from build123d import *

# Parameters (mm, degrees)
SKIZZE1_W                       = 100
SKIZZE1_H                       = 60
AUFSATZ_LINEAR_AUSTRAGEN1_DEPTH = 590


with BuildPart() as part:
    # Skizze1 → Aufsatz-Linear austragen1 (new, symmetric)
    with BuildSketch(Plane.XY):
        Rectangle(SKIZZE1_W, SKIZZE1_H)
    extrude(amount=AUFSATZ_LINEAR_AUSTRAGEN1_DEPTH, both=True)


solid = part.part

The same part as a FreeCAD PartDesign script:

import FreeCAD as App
import Part
import Sketcher

V = App.Vector


def add_polygon(sketch, points):
    """Adds a closed chain of lines whose ends are joined by coincident constraints."""
    first, n = sketch.GeometryCount, len(points)
    for a, b in zip(points, points[1:] + points[:1]):
        sketch.addGeometry(Part.LineSegment(App.Vector(*a, 0), App.Vector(*b, 0)), False)
    for i in range(n):
        sketch.addConstraint(Sketcher.Constraint("Coincident", first + i, 2, first + (i + 1) % n, 1))

doc = App.newDocument("Part")
params = doc.addObject("Spreadsheet::Sheet", "Params")
for row, (alias, value) in enumerate([
    ("sketch1_width", "100 mm"),
    ("sketch1_height", "60 mm"),
    ("pad1_length", "1180 mm"),
], start=1):
    params.set(f"A{row}", alias)
    params.set(f"B{row}", "=" + value)
    params.setAlias(f"B{row}", alias)

body = doc.addObject("PartDesign::Body", "Body")

# Sketch on XY plane
sketch1 = body.newObject("Sketcher::SketchObject", "Sketch")
sketch1.AttachmentSupport = (doc.getObject("XY_Plane"), [""])
sketch1.MapMode = "FlatFace"
add_polygon(sketch1, [(-50, 30), (-50, -30), (50, -30), (50, 30)])  # lines 0-3
sketch1.addConstraint([
    Sketcher.Constraint("Vertical", 0),
    Sketcher.Constraint("Horizontal", 1),
    Sketcher.Constraint("Vertical", 2),
    Sketcher.Constraint("Horizontal", 3),
    Sketcher.Constraint("Symmetric", 0, 2, 2, 2, -1, 1),
    Sketcher.Constraint("DistanceX", 1, 1, 1, 2, 100.0),
    Sketcher.Constraint("DistanceY", 0, 2, 0, 1, 60.0),
])
sketch1.setExpression("Constraints[9]", "Params.sketch1_width")
sketch1.setExpression("Constraints[10]", "Params.sketch1_height")
pad1 = body.newObject("PartDesign::Pad", "Pad")
pad1.Profile = sketch1
pad1.setExpression("Length", "Params.pad1_length")
pad1.Midplane = True

doc.recompute()
